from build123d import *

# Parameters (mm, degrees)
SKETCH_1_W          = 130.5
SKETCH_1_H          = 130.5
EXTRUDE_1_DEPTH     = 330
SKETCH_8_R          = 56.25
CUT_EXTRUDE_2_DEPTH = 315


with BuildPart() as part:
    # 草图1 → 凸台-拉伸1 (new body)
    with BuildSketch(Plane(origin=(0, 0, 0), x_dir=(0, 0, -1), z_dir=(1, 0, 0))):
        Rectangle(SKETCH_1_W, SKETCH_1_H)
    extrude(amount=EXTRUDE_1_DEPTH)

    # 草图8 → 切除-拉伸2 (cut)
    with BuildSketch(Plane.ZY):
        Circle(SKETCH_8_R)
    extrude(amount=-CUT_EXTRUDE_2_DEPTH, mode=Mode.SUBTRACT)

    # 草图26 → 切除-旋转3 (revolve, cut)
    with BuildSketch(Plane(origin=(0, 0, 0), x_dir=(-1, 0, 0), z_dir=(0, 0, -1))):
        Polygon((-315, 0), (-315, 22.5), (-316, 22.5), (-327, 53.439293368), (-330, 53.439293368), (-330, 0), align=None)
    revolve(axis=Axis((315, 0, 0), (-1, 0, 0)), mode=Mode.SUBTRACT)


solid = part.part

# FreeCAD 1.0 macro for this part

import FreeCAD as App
import Part
import Sketcher
Q = App.Units.Quantity


def add_polygon(sketch, points):
    """Adds a closed chain of lines whose ends are joined by coincident constraints."""
    first, n = sketch.GeometryCount, len(points)
    for a, b in zip(points, points[1:] + points[:1]):
        sketch.addGeometry(Part.LineSegment(App.Vector(*a, 0), App.Vector(*b, 0)), False)
    for i in range(n):
        sketch.addConstraint(Sketcher.Constraint("Coincident", first + i, 2, first + (i + 1) % n, 1))

doc = App.newDocument("Part")
body = doc.addObject("PartDesign::Body", "Body")

# Sketch on YZ plane
sketch1 = body.newObject("Sketcher::SketchObject", "Sketch")
sketch1.AttachmentSupport = (doc.getObject("YZ_Plane"), [""])
sketch1.MapMode = "FlatFace"
add_polygon(sketch1, [(65, 65), (-65, 65), (-65, -65), (65, -65)])  # lines 0-3
sketch1.addConstraint([
    Sketcher.Constraint("Horizontal", 0),
    Sketcher.Constraint("Vertical", 1),
    Sketcher.Constraint("Horizontal", 2),
    Sketcher.Constraint("Vertical", 3),
    Sketcher.Constraint("Symmetric", 0, 2, 2, 2, -1, 1),
    Sketcher.Constraint("Equal", 2, 1),
    Sketcher.Constraint("DistanceX", 0, 2, 0, 1, Q("130.5 mm")),
])
pad1 = body.newObject("PartDesign::Pad", "Pad")
pad1.Profile = sketch1
pad1.Length = 330

# Sketch on YZ plane
sketch2 = body.newObject("Sketcher::SketchObject", "Sketch001")
sketch2.AttachmentSupport = (doc.getObject("YZ_Plane"), [""])
sketch2.MapMode = "FlatFace"
sketch2.addGeometry(Part.Circle(App.Vector(0, 0, 0), App.Vector(0, 0, 1), 56), False)
sketch2.addConstraint([
    Sketcher.Constraint("Coincident", 0, 3, -1, 1),
    Sketcher.Constraint("Diameter", 0, Q("112.5 mm")),
])
pocket1 = body.newObject("PartDesign::Pocket", "Pocket")
pocket1.Profile = sketch2
pocket1.Length = 315
pocket1.Reversed = True

# Sketch on XY plane
sketch3 = body.newObject("Sketcher::SketchObject", "Sketch002")
sketch3.AttachmentSupport = (doc.getObject("XY_Plane"), [""])
sketch3.MapMode = "FlatFace"
add_polygon(sketch3, [(315, 0), (315, 22.5), (316, 22.5), (327, 53.4), (330, 53.4), (330, 0)])  # lines 0-5
sketch3.addConstraint([
    Sketcher.Constraint("Vertical", 0),
    Sketcher.Constraint("Horizontal", 1),
    Sketcher.Constraint("Horizontal", 3),
    Sketcher.Constraint("Vertical", 4),
    Sketcher.Constraint("Horizontal", 5),
    Sketcher.Constraint("PointOnObject", 4, 2, -1),
    Sketcher.Constraint("DistanceX", 1, 1, 1, 2, Q("1 mm")),
    Sketcher.Constraint("DistanceX", 3, 1, 3, 2, Q("3 mm")),
    Sketcher.Constraint("DistanceX", 5, 2, 5, 1, Q("15 mm")),
    Sketcher.Constraint("DistanceY", 0, 1, 0, 2, Q("22.5 mm")),
    Sketcher.Constraint("DistanceX", -1, 1, 0, 2, Q("315 mm")),
    Sketcher.Constraint("DistanceY", 4, 2, 4, 1, Q("53.439293 mm")),
])
groove = body.newObject("PartDesign::Groove", "Groove")
groove.Profile = sketch3
groove.ReferenceAxis = (sketch3, ["H_Axis"])
groove.Angle = 360

doc.recompute()
